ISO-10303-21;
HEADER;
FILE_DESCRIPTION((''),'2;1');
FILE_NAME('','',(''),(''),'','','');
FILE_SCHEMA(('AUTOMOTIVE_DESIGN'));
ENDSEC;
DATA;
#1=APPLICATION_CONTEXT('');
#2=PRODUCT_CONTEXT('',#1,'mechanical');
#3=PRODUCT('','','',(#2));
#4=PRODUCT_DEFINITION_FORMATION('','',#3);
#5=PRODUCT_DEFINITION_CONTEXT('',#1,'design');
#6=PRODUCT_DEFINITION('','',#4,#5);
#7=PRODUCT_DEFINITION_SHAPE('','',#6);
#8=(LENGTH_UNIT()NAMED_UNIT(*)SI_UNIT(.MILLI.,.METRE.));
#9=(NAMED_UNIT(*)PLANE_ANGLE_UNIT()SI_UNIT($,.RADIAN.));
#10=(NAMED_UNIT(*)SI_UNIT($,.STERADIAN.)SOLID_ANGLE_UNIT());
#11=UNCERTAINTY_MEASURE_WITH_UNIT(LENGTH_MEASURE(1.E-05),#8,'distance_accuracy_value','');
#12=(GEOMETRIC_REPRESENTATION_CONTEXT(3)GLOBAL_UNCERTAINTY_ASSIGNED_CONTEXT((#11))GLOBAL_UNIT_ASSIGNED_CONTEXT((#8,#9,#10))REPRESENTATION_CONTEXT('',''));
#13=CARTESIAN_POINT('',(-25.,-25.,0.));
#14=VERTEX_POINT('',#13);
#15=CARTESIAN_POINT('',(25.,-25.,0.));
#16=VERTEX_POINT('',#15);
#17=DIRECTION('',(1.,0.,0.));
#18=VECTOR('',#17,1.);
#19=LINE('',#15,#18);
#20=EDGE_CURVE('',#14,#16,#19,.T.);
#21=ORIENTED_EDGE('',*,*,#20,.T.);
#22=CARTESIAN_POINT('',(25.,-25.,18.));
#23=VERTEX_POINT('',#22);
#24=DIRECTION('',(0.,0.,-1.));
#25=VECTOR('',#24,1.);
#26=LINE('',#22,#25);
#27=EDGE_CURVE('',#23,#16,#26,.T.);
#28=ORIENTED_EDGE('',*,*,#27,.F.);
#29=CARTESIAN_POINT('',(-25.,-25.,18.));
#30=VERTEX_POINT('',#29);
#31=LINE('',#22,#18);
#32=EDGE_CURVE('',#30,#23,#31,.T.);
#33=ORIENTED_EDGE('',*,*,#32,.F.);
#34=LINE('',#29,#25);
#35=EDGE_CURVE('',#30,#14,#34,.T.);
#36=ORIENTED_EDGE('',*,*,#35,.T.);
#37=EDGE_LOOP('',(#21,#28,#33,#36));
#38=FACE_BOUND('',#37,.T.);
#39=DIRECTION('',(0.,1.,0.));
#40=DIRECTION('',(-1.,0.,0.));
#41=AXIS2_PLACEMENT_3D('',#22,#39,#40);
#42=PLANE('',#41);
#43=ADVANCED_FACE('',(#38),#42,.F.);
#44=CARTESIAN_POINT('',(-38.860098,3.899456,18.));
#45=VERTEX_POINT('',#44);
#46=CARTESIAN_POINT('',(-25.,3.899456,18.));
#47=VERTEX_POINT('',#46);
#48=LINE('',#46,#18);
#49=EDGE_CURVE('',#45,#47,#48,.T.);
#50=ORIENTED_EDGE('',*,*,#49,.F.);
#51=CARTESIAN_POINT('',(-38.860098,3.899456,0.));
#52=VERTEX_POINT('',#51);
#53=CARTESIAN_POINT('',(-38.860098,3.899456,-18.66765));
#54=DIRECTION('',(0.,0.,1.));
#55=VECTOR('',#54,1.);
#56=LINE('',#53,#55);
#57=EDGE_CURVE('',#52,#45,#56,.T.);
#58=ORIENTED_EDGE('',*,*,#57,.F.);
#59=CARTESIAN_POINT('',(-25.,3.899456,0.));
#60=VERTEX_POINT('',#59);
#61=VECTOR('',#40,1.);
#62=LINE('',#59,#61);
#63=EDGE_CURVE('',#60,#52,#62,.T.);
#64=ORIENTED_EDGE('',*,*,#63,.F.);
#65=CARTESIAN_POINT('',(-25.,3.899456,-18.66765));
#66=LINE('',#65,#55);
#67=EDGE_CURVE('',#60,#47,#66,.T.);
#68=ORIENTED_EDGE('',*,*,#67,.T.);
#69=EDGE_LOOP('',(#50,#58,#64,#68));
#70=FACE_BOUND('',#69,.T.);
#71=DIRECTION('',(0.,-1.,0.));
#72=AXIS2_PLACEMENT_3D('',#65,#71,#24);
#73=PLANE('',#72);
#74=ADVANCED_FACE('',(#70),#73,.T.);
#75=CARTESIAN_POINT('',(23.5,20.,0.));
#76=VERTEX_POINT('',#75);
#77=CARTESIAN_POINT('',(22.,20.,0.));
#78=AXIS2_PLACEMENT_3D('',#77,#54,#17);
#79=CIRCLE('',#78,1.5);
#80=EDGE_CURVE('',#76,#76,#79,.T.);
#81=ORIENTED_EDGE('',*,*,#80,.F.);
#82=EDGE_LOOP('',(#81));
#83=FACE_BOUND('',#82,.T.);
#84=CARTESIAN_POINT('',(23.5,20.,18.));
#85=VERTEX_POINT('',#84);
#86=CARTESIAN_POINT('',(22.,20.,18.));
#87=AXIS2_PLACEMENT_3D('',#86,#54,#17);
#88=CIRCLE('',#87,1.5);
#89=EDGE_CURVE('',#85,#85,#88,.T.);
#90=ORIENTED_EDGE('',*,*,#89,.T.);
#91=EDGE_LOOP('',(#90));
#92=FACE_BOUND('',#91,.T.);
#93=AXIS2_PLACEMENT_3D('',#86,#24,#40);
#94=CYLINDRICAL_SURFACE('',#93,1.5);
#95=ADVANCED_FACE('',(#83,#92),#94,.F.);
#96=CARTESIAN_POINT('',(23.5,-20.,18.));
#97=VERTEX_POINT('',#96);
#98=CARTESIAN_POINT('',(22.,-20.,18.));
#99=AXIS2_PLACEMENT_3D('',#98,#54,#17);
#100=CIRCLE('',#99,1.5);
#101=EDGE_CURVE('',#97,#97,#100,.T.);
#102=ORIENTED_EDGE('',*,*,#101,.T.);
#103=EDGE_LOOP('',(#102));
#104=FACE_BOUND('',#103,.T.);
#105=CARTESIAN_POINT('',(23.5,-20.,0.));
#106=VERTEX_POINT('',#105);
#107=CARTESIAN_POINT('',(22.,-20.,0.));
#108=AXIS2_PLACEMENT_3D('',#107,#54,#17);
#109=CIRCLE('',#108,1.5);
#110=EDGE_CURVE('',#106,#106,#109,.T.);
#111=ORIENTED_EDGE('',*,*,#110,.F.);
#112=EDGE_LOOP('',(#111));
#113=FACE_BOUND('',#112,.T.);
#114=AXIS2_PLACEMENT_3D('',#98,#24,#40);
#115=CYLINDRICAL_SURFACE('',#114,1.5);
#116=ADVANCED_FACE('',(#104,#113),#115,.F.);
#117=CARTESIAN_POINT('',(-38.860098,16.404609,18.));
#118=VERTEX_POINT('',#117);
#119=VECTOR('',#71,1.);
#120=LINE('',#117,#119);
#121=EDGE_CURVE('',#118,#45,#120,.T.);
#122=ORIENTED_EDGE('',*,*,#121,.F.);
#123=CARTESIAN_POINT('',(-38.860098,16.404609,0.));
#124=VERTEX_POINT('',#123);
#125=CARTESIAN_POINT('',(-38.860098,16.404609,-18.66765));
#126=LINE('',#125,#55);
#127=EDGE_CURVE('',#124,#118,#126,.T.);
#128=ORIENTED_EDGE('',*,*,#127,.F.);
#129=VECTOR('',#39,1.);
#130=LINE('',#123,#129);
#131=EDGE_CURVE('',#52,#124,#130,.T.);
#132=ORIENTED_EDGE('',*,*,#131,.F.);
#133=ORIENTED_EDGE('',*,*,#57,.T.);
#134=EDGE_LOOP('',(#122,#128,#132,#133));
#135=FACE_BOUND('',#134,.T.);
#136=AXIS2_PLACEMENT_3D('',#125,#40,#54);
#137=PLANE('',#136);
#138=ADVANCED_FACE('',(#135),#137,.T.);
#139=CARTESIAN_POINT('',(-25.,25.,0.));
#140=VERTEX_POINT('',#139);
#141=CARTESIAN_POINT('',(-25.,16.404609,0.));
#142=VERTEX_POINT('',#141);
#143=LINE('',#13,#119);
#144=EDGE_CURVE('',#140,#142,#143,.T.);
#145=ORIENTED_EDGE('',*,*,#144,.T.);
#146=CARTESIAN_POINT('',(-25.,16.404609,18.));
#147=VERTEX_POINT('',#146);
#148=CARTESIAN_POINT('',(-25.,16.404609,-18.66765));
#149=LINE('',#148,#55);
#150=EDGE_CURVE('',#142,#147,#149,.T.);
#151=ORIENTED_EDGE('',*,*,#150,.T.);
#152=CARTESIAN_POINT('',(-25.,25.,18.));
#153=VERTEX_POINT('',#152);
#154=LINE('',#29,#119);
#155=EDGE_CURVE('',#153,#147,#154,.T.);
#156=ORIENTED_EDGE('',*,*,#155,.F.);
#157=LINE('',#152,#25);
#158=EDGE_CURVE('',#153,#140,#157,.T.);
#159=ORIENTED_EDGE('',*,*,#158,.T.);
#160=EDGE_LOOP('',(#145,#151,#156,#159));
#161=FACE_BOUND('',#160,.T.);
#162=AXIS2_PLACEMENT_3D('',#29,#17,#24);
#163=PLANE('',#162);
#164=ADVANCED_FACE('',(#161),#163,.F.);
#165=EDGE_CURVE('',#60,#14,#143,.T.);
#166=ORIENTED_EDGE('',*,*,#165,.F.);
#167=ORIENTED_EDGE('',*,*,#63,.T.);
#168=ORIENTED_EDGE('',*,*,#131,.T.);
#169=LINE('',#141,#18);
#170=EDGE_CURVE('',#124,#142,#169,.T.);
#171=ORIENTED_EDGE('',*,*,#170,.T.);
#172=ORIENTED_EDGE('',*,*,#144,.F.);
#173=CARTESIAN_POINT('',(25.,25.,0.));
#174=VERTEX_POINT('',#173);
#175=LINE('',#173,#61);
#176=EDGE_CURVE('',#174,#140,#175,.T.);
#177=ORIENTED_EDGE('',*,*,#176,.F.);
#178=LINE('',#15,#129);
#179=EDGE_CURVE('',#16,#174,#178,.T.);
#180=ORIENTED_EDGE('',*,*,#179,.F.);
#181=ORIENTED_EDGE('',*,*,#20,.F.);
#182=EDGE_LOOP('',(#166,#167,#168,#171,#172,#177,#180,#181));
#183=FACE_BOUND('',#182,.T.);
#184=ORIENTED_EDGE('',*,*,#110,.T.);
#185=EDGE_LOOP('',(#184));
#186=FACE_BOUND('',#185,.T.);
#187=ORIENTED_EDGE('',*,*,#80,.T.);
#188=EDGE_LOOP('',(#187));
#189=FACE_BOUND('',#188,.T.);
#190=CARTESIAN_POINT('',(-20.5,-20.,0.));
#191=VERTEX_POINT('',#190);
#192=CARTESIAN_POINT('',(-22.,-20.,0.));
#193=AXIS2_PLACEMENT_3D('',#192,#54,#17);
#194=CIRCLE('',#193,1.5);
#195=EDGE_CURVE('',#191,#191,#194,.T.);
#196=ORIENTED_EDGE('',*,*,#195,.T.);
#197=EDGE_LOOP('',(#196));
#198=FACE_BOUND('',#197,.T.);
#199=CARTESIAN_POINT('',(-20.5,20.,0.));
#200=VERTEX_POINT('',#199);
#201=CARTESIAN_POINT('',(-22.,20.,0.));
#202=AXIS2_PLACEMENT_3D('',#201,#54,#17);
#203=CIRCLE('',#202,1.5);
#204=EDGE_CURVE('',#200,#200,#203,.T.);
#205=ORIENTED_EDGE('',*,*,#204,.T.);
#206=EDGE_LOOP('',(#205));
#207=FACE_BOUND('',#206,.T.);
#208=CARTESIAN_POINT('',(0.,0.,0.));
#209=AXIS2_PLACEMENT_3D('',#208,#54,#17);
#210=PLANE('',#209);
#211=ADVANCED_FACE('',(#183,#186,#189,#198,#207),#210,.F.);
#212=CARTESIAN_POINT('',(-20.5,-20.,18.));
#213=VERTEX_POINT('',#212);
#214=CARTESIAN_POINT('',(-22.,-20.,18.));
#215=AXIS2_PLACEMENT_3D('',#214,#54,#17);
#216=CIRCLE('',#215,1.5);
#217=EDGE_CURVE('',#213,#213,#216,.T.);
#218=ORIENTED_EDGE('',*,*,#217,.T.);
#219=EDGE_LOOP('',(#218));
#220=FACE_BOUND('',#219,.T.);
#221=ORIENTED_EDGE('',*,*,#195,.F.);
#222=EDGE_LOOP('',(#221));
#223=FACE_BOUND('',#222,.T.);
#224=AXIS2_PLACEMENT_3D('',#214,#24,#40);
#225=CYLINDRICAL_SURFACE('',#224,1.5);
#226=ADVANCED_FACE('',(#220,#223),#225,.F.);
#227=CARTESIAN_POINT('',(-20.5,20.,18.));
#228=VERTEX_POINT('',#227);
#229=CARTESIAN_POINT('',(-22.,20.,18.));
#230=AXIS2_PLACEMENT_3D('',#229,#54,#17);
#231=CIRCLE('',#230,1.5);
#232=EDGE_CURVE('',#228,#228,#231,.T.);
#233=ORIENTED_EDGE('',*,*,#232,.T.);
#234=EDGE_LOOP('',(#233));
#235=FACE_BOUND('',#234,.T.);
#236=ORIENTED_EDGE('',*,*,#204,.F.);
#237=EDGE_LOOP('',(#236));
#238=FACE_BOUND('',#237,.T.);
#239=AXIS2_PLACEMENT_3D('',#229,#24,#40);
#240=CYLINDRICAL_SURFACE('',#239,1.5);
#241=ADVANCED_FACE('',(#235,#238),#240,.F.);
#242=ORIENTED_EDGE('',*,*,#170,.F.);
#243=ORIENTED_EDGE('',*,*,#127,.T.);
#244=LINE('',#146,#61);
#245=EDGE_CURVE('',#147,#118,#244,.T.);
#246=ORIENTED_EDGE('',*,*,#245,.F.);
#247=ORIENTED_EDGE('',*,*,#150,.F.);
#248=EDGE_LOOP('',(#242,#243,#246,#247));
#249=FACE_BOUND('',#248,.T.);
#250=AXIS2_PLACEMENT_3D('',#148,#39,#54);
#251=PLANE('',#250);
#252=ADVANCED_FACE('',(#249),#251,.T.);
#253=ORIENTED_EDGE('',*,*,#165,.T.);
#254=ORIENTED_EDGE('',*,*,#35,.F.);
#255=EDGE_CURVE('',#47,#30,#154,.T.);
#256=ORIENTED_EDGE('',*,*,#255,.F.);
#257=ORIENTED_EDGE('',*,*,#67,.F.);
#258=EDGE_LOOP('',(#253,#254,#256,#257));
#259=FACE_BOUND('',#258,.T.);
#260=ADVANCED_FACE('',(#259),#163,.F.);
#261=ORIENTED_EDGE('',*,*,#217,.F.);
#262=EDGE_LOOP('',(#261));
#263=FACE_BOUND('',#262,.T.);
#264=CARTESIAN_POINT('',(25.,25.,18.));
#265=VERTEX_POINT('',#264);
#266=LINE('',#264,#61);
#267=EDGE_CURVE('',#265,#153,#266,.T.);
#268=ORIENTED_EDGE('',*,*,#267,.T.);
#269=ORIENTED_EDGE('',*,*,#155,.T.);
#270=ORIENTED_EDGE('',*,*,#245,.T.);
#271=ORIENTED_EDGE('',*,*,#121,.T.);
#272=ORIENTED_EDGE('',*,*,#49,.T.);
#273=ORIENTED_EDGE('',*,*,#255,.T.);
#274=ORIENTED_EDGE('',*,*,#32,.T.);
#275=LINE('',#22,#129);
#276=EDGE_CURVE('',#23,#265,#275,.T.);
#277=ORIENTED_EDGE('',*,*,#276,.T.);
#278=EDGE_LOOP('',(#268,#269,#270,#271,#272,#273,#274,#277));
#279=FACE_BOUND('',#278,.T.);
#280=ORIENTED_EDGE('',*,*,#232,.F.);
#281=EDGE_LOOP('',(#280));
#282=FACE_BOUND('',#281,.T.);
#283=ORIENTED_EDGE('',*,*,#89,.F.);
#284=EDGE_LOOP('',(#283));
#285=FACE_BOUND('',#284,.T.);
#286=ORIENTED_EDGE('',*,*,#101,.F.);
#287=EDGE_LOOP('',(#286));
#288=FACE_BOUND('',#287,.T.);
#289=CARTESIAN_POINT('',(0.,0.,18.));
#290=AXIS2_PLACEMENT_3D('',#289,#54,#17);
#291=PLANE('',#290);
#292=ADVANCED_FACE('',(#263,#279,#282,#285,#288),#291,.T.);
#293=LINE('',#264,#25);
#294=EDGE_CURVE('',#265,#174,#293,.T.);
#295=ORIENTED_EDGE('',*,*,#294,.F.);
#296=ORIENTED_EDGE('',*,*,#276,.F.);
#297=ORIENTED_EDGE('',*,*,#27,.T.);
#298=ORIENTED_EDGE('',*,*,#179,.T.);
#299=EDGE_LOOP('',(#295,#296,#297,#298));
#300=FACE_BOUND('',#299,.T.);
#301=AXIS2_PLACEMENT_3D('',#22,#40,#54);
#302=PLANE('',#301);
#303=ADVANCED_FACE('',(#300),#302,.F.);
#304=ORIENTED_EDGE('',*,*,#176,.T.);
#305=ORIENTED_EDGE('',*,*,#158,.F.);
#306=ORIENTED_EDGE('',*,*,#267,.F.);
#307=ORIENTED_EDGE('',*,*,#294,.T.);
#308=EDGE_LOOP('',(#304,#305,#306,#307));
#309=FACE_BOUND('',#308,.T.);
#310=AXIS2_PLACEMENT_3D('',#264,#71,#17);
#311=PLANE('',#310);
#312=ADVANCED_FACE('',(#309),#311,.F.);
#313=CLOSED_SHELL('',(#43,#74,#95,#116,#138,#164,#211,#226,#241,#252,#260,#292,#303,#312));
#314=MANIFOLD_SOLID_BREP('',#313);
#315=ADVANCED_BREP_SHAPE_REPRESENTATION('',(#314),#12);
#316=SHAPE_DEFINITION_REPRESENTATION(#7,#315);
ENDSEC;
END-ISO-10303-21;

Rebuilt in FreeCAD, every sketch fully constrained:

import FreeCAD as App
import Part
import Sketcher
Q = App.Units.Quantity

doc = App.newDocument("Part")
body = doc.addObject("PartDesign::Body", "Body")

# Sketch on XY plane
sketch1 = body.newObject("Sketcher::SketchObject", "Sketch")
sketch1.AttachmentSupport = (doc.getObject("XY_Plane"), [""])
sketch1.MapMode = "FlatFace"
sketch1.addGeometry([
    Part.LineSegment(App.Vector(-25, 25, 0), App.Vector(-25, -25, 0)),  # 0
    Part.LineSegment(App.Vector(-25, -25, 0), App.Vector(25, -25, 0)),  # 1
    Part.LineSegment(App.Vector(25, -25, 0), App.Vector(25, 25, 0)),  # 2
    Part.LineSegment(App.Vector(25, 25, 0), App.Vector(-25, 25, 0)),  # 3
    Part.Circle(App.Vector(-22, -20, 0), App.Vector(0, 0, 1), 1.5),  # 4
    Part.Circle(App.Vector(22, -20, 0), App.Vector(0, 0, 1), 1.5),  # 5
    Part.Circle(App.Vector(-22, 20, 0), App.Vector(0, 0, 1), 1.5),  # 6
    Part.Circle(App.Vector(22, 20, 0), App.Vector(0, 0, 1), 1.5),  # 7
], False)
sketch1.addConstraint([
    Sketcher.Constraint("Coincident", 0, 2, 1, 1),
    Sketcher.Constraint("Coincident", 1, 2, 2, 1),
    Sketcher.Constraint("Coincident", 2, 2, 3, 1),
    Sketcher.Constraint("Coincident", 3, 2, 0, 1),
    Sketcher.Constraint("Vertical", 0),
    Sketcher.Constraint("Horizontal", 1),
    Sketcher.Constraint("Vertical", 2),
    Sketcher.Constraint("Horizontal", 3),
    Sketcher.Constraint("Equal", 4, 5),
    Sketcher.Constraint("Equal", 5, 6),
    Sketcher.Constraint("Equal", 6, 7),
    Sketcher.Constraint("Symmetric", 5, 3, 6, 3, -1, 1),
    Sketcher.Constraint("Symmetric", 4, 3, 7, 3, -1, 1),
    Sketcher.Constraint("Symmetric", 0, 2, 2, 2, -1, 1),
    Sketcher.Constraint("Symmetric", 4, 3, 5, 3, -2),
    Sketcher.Constraint("Equal", 3, 0),
    Sketcher.Constraint("Diameter", 4, Q("3 mm")),
    Sketcher.Constraint("DistanceX", 1, 1, 1, 2, Q("50 mm")),
    Sketcher.Constraint("DistanceX", 4, 3, -1, 1, Q("22 mm")),
    Sketcher.Constraint("DistanceY", 4, 3, -1, 1, Q("20 mm")),
])
pad1 = body.newObject("PartDesign::Pad", "Pad")
pad1.Profile = sketch1
pad1.Length = 18

# Sketch on XY plane
sketch2 = body.newObject("Sketcher::SketchObject", "Sketch001")
sketch2.AttachmentSupport = (doc.getObject("XY_Plane"), [""])
sketch2.MapMode = "FlatFace"
sketch2.AttachmentOffset = App.Placement(App.Vector(0, 0, 18), App.Rotation())
sketch2.addGeometry([
    Part.LineSegment(App.Vector(-38.860098, 16.404609, 0), App.Vector(-38.860098, 3.899456, 0)),
    Part.LineSegment(App.Vector(-38.860098, 3.899456, 0), App.Vector(-25, 3.899456, 0)),
    Part.LineSegment(App.Vector(-25, 3.899456, 0), App.Vector(-25, 16.404609, 0)),
    Part.LineSegment(App.Vector(-25, 16.404609, 0), App.Vector(-38.860098, 16.404609, 0)),
], False)
sketch2.addConstraint([
    Sketcher.Constraint("Coincident", 0, 2, 1, 1),
    Sketcher.Constraint("Coincident", 1, 2, 2, 1),
    Sketcher.Constraint("Coincident", 2, 2, 3, 1),
    Sketcher.Constraint("Coincident", 3, 2, 0, 1),
    Sketcher.Constraint("Vertical", 0),
    Sketcher.Constraint("Horizontal", 1),
    Sketcher.Constraint("Vertical", 2),
    Sketcher.Constraint("Horizontal", 3),
    Sketcher.Constraint("DistanceX", 1, 2, -1, 1, Q("25 mm")),
    Sketcher.Constraint("DistanceX", 1, 1, 1, 2, Q("13.860098 mm")),
    Sketcher.Constraint("DistanceY", 0, 2, 0, 1, Q("12.505153 mm")),
    Sketcher.Constraint("DistanceY", -1, 1, 2, 2, Q("16.404609 mm")),
])
pad2 = body.newObject("PartDesign::Pad", "Pad001")
pad2.Profile = sketch2
pad2.Length = 18
pad2.Reversed = True

doc.recompute()
